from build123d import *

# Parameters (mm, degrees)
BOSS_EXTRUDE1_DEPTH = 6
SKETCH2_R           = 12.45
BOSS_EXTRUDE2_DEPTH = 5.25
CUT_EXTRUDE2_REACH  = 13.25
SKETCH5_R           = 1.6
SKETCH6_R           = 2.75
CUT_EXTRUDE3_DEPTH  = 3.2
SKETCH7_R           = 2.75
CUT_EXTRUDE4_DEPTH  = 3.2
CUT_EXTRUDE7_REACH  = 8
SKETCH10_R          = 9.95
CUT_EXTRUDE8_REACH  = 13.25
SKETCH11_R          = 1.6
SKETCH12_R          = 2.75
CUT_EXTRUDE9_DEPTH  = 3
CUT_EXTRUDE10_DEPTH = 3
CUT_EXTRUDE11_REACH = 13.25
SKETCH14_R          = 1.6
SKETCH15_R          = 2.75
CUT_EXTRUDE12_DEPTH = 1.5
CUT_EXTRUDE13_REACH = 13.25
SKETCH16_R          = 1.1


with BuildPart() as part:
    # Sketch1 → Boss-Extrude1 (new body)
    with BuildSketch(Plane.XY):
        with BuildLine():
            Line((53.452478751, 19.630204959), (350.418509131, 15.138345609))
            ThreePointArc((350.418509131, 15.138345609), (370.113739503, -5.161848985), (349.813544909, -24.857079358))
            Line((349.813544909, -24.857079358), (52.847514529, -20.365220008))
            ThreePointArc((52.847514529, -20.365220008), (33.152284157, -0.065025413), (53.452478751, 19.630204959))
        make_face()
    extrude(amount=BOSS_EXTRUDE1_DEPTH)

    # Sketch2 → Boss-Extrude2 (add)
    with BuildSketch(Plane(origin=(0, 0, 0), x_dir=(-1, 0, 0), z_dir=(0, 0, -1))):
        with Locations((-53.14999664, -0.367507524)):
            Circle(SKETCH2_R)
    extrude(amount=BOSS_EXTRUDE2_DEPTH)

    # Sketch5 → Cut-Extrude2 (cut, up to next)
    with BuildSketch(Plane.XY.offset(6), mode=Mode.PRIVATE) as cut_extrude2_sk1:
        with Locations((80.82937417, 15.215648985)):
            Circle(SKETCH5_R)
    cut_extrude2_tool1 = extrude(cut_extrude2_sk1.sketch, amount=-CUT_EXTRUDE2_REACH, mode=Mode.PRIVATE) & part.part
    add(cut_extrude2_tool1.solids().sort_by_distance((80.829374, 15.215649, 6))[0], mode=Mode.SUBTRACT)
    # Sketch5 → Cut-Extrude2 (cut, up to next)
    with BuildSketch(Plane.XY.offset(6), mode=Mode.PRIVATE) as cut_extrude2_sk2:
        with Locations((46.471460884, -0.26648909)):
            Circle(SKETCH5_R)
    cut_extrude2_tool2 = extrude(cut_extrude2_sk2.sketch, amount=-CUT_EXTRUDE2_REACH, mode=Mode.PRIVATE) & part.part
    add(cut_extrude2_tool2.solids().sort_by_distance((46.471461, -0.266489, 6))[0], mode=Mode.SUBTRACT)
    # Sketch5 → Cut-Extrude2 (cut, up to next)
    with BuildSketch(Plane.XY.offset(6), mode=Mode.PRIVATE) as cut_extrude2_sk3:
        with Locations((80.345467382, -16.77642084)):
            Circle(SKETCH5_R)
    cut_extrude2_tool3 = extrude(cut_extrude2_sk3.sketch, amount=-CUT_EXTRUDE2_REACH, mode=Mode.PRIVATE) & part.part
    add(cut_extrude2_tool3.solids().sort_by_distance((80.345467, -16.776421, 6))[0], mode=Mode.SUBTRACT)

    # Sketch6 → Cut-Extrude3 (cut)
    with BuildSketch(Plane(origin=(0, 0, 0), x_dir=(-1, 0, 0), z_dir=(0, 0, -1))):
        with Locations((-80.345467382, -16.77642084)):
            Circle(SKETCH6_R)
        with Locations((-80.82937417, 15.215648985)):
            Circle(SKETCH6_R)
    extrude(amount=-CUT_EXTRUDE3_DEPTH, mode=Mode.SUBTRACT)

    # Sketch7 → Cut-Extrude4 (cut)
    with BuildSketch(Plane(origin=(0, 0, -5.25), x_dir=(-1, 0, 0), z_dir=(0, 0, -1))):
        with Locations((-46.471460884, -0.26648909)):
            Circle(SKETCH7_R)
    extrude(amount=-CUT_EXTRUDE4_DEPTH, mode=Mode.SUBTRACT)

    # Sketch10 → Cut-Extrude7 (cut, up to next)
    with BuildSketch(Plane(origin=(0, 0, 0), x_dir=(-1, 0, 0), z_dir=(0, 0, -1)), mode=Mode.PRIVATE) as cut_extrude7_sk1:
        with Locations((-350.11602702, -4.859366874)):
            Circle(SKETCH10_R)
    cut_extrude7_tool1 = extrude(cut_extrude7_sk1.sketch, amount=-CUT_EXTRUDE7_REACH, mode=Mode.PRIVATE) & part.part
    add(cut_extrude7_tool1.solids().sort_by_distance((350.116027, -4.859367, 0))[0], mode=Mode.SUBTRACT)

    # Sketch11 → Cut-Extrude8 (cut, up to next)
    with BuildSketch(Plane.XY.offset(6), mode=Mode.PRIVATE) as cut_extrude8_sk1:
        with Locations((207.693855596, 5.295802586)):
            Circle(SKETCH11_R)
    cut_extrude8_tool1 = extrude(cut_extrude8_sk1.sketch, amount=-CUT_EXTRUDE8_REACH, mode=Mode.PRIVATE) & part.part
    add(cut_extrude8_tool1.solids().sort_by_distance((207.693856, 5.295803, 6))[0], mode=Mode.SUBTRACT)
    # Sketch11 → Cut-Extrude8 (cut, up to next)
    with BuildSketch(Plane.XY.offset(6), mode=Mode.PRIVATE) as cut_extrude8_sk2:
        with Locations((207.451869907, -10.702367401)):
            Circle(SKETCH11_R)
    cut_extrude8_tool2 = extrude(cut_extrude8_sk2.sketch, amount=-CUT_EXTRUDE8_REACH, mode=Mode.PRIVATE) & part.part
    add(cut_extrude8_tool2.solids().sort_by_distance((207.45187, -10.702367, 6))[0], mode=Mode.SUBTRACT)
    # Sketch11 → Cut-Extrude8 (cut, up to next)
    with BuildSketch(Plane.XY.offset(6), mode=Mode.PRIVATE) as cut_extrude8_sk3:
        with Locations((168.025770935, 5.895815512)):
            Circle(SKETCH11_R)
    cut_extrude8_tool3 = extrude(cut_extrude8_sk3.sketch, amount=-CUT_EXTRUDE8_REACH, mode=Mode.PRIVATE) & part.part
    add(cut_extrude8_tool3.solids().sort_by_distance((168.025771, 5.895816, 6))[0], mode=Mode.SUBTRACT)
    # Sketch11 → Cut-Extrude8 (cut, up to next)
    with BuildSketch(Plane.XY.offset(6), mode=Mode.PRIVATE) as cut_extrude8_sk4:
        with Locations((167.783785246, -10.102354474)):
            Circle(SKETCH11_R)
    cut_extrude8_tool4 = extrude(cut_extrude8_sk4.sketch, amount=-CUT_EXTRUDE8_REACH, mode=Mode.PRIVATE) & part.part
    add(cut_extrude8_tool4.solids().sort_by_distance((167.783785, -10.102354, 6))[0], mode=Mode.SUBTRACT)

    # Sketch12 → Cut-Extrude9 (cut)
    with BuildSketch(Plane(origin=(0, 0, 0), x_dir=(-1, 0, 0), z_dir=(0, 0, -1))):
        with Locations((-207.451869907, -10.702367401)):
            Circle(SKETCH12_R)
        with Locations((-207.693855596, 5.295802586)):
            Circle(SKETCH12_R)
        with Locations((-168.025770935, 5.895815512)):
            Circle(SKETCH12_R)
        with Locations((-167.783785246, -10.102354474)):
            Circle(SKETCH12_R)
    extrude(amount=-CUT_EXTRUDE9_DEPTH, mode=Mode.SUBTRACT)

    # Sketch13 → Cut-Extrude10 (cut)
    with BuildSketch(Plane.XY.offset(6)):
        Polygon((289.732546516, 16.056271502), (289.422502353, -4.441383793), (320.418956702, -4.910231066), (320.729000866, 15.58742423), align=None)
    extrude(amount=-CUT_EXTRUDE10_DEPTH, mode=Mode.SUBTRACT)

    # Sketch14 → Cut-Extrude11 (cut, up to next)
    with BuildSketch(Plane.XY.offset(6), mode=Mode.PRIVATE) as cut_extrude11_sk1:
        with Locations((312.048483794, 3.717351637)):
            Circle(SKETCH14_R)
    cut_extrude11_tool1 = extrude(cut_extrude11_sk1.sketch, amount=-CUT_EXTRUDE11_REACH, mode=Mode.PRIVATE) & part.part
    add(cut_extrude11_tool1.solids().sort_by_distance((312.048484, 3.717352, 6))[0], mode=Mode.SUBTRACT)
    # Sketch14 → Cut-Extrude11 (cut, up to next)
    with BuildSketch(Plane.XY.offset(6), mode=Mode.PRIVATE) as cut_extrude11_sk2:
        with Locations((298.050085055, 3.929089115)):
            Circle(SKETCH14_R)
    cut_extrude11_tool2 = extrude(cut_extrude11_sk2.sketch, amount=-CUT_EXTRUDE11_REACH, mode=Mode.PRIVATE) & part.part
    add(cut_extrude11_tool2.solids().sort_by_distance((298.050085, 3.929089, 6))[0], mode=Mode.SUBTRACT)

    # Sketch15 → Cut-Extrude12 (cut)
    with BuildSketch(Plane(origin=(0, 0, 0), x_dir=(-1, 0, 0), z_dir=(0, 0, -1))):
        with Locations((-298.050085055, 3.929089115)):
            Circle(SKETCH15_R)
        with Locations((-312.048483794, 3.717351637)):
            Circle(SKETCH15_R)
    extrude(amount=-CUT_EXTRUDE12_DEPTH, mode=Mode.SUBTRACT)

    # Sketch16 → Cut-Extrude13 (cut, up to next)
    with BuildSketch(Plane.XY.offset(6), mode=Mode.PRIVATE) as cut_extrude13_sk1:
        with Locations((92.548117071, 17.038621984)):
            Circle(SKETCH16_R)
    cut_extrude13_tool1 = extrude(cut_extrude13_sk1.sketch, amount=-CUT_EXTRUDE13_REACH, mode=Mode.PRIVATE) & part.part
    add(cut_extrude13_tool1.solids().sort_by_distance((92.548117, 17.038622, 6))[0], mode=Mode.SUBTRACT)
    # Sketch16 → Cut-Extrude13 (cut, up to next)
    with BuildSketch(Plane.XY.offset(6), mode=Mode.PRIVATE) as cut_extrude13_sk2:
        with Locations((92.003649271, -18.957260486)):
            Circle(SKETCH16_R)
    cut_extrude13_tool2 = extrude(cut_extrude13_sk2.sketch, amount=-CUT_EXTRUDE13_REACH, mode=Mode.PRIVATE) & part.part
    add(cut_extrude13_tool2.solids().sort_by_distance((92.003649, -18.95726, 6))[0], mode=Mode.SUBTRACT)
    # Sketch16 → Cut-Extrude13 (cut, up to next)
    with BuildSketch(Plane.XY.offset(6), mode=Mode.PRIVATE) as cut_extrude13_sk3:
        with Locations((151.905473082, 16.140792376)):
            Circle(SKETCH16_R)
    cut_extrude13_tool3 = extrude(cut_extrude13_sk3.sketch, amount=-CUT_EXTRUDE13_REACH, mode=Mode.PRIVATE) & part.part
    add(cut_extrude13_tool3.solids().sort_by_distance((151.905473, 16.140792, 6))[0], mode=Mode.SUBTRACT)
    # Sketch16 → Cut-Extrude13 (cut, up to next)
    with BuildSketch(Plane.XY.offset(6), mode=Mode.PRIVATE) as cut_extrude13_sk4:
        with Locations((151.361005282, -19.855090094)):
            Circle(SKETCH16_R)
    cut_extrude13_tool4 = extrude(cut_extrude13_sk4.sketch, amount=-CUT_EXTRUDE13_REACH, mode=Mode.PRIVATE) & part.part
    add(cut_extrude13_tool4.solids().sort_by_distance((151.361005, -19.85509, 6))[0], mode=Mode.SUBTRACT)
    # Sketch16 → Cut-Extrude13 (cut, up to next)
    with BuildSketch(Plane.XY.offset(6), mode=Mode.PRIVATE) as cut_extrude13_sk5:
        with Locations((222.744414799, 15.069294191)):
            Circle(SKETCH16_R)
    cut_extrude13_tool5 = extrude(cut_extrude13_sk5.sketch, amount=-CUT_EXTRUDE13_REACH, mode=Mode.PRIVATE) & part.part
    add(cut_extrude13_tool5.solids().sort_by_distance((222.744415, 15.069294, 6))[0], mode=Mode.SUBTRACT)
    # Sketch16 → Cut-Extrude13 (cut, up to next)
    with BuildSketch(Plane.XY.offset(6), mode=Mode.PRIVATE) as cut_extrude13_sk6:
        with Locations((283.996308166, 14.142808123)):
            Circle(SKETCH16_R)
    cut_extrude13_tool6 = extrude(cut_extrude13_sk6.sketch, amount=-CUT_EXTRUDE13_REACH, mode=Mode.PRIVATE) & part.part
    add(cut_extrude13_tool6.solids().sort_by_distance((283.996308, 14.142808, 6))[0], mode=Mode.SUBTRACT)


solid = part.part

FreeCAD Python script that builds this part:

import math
import FreeCAD as App
import Part
import Sketcher

V = App.Vector


def add_polygon(sketch, points):
    """Adds a closed chain of lines whose ends are joined by coincident constraints."""
    first, n = sketch.GeometryCount, len(points)
    for a, b in zip(points, points[1:] + points[:1]):
        sketch.addGeometry(Part.LineSegment(App.Vector(*a, 0), App.Vector(*b, 0)), False)
    for i in range(n):
        sketch.addConstraint(Sketcher.Constraint("Coincident", first + i, 2, first + (i + 1) % n, 1))

doc = App.newDocument("Part")
body = doc.addObject("PartDesign::Body", "Body")

# Sketch on XY plane
sketch1 = body.newObject("Sketcher::SketchObject", "Sketch")
sketch1.AttachmentSupport = (doc.getObject("XY_Plane"), [""])
sketch1.MapMode = "FlatFace"
sketch1.addGeometry([
    Part.LineSegment(V(350, 15, 0), V(53, 20, 0)),
    Part.ArcOfCircle(Part.Circle(V(53, 0, 0), V(0, 0, 1), 20), math.radians(89), math.radians(269)),
    Part.LineSegment(V(53, -20, 0), V(350, -25, 0)),
    Part.ArcOfCircle(Part.Circle(V(350, -5, 0), V(0, 0, 1), 20), math.radians(-91), math.radians(89)),
], False)
sketch1.addConstraint([
    Sketcher.Constraint("Tangent", 0, 2, 1, 1),
    Sketcher.Constraint("Tangent", 1, 2, 2, 1),
    Sketcher.Constraint("Tangent", 2, 2, 3, 1),
    Sketcher.Constraint("Tangent", 3, 2, 0, 1),
    Sketcher.Constraint("Equal", 1, 3),
    Sketcher.Constraint("Radius", 1, 20.0),
    Sketcher.Constraint("Distance", 0, 297.0),
    Sketcher.Constraint("DistanceX", -1, 1, 0, 2, 53.452479),
    Sketcher.Constraint("DistanceY", 1, 2, -1, 1, 20.36522),
    Sketcher.Constraint("DistanceY", 2, 2, -1, 1, 24.857079),
])
pad1 = body.newObject("PartDesign::Pad", "Pad")
pad1.Profile = sketch1
pad1.Length = 6

# Sketch on XY plane
sketch2 = body.newObject("Sketcher::SketchObject", "Sketch001")
sketch2.AttachmentSupport = (doc.getObject("XY_Plane"), [""])
sketch2.MapMode = "FlatFace"
sketch2.addGeometry(Part.Circle(V(53, 0, 0), V(0, 0, 1), 12), False)
sketch2.addConstraint([
    Sketcher.Constraint("Diameter", 0, 24.9),
    Sketcher.Constraint("DistanceX", -1, 1, 0, 3, 53.149997),
    Sketcher.Constraint("DistanceY", 0, 3, -1, 1, 0.367508),
])
pad2 = body.newObject("PartDesign::Pad", "Pad001")
pad2.Profile = sketch2
pad2.Length = 5.25
pad2.Reversed = True

# Sketch on XY plane
sketch3 = body.newObject("Sketcher::SketchObject", "Sketch002")
sketch3.AttachmentSupport = (doc.getObject("XY_Plane"), [""])
sketch3.MapMode = "FlatFace"
sketch3.AttachmentOffset = App.Placement(V(0, 0, 6), App.Rotation())
sketch3.addGeometry(Part.Circle(V(80.8, 15.2, 0), V(0, 0, 1), 1.6), False)
sketch3.addConstraint([
    Sketcher.Constraint("Diameter", 0, 3.2),
    Sketcher.Constraint("DistanceY", -1, 1, 0, 3, 15.215649),
    Sketcher.Constraint("DistanceX", -1, 1, 0, 3, 80.829374),
])
pocket1 = body.newObject("PartDesign::Pocket", "Pocket")
pocket1.Profile = sketch3
pocket1.Type = "UpToFirst"

# Sketch on XY plane
sketch4 = body.newObject("Sketcher::SketchObject", "Sketch003")
sketch4.AttachmentSupport = (doc.getObject("XY_Plane"), [""])
sketch4.MapMode = "FlatFace"
sketch4.AttachmentOffset = App.Placement(V(0, 0, 6), App.Rotation())
sketch4.addGeometry(Part.Circle(V(46.5, -0.3, 0), V(0, 0, 1), 1.6), False)
sketch4.addConstraint([
    Sketcher.Constraint("Diameter", 0, 3.2),
    Sketcher.Constraint("DistanceX", -1, 1, 0, 3, 46.471461),
    Sketcher.Constraint("DistanceY", 0, 3, -1, 1, 0.266489),
])
pocket2 = body.newObject("PartDesign::Pocket", "Pocket001")
pocket2.Profile = sketch4
pocket2.Type = "UpToFirst"

# Sketch on XY plane
sketch5 = body.newObject("Sketcher::SketchObject", "Sketch004")
sketch5.AttachmentSupport = (doc.getObject("XY_Plane"), [""])
sketch5.MapMode = "FlatFace"
sketch5.AttachmentOffset = App.Placement(V(0, 0, 6), App.Rotation())
sketch5.addGeometry(Part.Circle(V(80.3, -16.8, 0), V(0, 0, 1), 1.6), False)
sketch5.addConstraint([
    Sketcher.Constraint("Diameter", 0, 3.2),
    Sketcher.Constraint("DistanceY", 0, 3, -1, 1, 16.776421),
    Sketcher.Constraint("DistanceX", -1, 1, 0, 3, 80.345467),
])
pocket3 = body.newObject("PartDesign::Pocket", "Pocket002")
pocket3.Profile = sketch5
pocket3.Type = "UpToFirst"

# Sketch on XY plane
sketch6 = body.newObject("Sketcher::SketchObject", "Sketch005")
sketch6.AttachmentSupport = (doc.getObject("XY_Plane"), [""])
sketch6.MapMode = "FlatFace"
sketch6.addGeometry([
    Part.Circle(V(80.3, -16.8, 0), V(0, 0, 1), 2.8),
    Part.Circle(V(80.8, 15.2, 0), V(0, 0, 1), 2.8),
], False)
sketch6.addConstraint([
    Sketcher.Constraint("Equal", 0, 1),
    Sketcher.Constraint("Diameter", 0, 5.5),
    Sketcher.Constraint("DistanceY", 0, 3, -1, 1, 16.776421),
    Sketcher.Constraint("DistanceY", -1, 1, 1, 3, 15.215649),
    Sketcher.Constraint("DistanceX", -1, 1, 0, 3, 80.345467),
    Sketcher.Constraint("DistanceX", -1, 1, 1, 3, 80.829374),
])
pocket4 = body.newObject("PartDesign::Pocket", "Pocket003")
pocket4.Profile = sketch6
pocket4.Length = 3.2
pocket4.Reversed = True

# Sketch on XY plane
sketch7 = body.newObject("Sketcher::SketchObject", "Sketch006")
sketch7.AttachmentSupport = (doc.getObject("XY_Plane"), [""])
sketch7.MapMode = "FlatFace"
sketch7.AttachmentOffset = App.Placement(V(0, 0, -5.25), App.Rotation())
sketch7.addGeometry(Part.Circle(V(46.5, -0.3, 0), V(0, 0, 1), 2.8), False)
sketch7.addConstraint([
    Sketcher.Constraint("Diameter", 0, 5.5),
    Sketcher.Constraint("DistanceX", -1, 1, 0, 3, 46.471461),
    Sketcher.Constraint("DistanceY", 0, 3, -1, 1, 0.266489),
])
pocket5 = body.newObject("PartDesign::Pocket", "Pocket004")
pocket5.Profile = sketch7
pocket5.Length = 3.2
pocket5.Reversed = True

# Sketch on XY plane
sketch8 = body.newObject("Sketcher::SketchObject", "Sketch007")
sketch8.AttachmentSupport = (doc.getObject("XY_Plane"), [""])
sketch8.MapMode = "FlatFace"
sketch8.addGeometry(Part.Circle(V(350, -5, 0), V(0, 0, 1), 10), False)
sketch8.addConstraint([
    Sketcher.Constraint("Diameter", 0, 19.9),
    Sketcher.Constraint("DistanceX", -1, 1, 0, 3, 350.116027),
    Sketcher.Constraint("DistanceY", 0, 3, -1, 1, 4.859367),
])
pocket6 = body.newObject("PartDesign::Pocket", "Pocket005")
pocket6.Profile = sketch8
pocket6.Type = "UpToFirst"
pocket6.Reversed = True

# Sketch on XY plane
sketch9 = body.newObject("Sketcher::SketchObject", "Sketch008")
sketch9.AttachmentSupport = (doc.getObject("XY_Plane"), [""])
sketch9.MapMode = "FlatFace"
sketch9.AttachmentOffset = App.Placement(V(0, 0, 6), App.Rotation())
sketch9.addGeometry(Part.Circle(V(207.7, 5.3, 0), V(0, 0, 1), 1.6), False)
sketch9.addConstraint([
    Sketcher.Constraint("Diameter", 0, 3.2),
    Sketcher.Constraint("DistanceX", -1, 1, 0, 3, 207.693856),
    Sketcher.Constraint("DistanceY", -1, 1, 0, 3, 5.295803),
])
pocket7 = body.newObject("PartDesign::Pocket", "Pocket006")
pocket7.Profile = sketch9
pocket7.Type = "UpToFirst"

# Sketch on XY plane
sketch10 = body.newObject("Sketcher::SketchObject", "Sketch009")
sketch10.AttachmentSupport = (doc.getObject("XY_Plane"), [""])
sketch10.MapMode = "FlatFace"
sketch10.AttachmentOffset = App.Placement(V(0, 0, 6), App.Rotation())
sketch10.addGeometry(Part.Circle(V(207.5, -10.7, 0), V(0, 0, 1), 1.6), False)
sketch10.addConstraint([
    Sketcher.Constraint("Diameter", 0, 3.2),
    Sketcher.Constraint("DistanceX", -1, 1, 0, 3, 207.45187),
    Sketcher.Constraint("DistanceY", 0, 3, -1, 1, 10.702367),
])
pocket8 = body.newObject("PartDesign::Pocket", "Pocket007")
pocket8.Profile = sketch10
pocket8.Type = "UpToFirst"

# Sketch on XY plane
sketch11 = body.newObject("Sketcher::SketchObject", "Sketch010")
sketch11.AttachmentSupport = (doc.getObject("XY_Plane"), [""])
sketch11.MapMode = "FlatFace"
sketch11.AttachmentOffset = App.Placement(V(0, 0, 6), App.Rotation())
sketch11.addGeometry(Part.Circle(V(168, 5.9, 0), V(0, 0, 1), 1.6), False)
sketch11.addConstraint([
    Sketcher.Constraint("Diameter", 0, 3.2),
    Sketcher.Constraint("DistanceX", -1, 1, 0, 3, 168.025771),
    Sketcher.Constraint("DistanceY", -1, 1, 0, 3, 5.895816),
])
pocket9 = body.newObject("PartDesign::Pocket", "Pocket008")
pocket9.Profile = sketch11
pocket9.Type = "UpToFirst"

# Sketch on XY plane
sketch12 = body.newObject("Sketcher::SketchObject", "Sketch011")
sketch12.AttachmentSupport = (doc.getObject("XY_Plane"), [""])
sketch12.MapMode = "FlatFace"
sketch12.AttachmentOffset = App.Placement(V(0, 0, 6), App.Rotation())
sketch12.addGeometry(Part.Circle(V(167.8, -10.1, 0), V(0, 0, 1), 1.6), False)
sketch12.addConstraint([
    Sketcher.Constraint("Diameter", 0, 3.2),
    Sketcher.Constraint("DistanceX", -1, 1, 0, 3, 167.783785),
    Sketcher.Constraint("DistanceY", 0, 3, -1, 1, 10.102354),
])
pocket10 = body.newObject("PartDesign::Pocket", "Pocket009")
pocket10.Profile = sketch12
pocket10.Type = "UpToFirst"

# Sketch on XY plane
sketch13 = body.newObject("Sketcher::SketchObject", "Sketch012")
sketch13.AttachmentSupport = (doc.getObject("XY_Plane"), [""])
sketch13.MapMode = "FlatFace"
sketch13.addGeometry([
    Part.Circle(V(207.5, -10.7, 0), V(0, 0, 1), 2.8),
    Part.Circle(V(207.7, 5.3, 0), V(0, 0, 1), 2.8),
    Part.Circle(V(168, 5.9, 0), V(0, 0, 1), 2.8),
    Part.Circle(V(167.8, -10.1, 0), V(0, 0, 1), 2.8),
], False)
sketch13.addConstraint([
    Sketcher.Constraint("Equal", 0, 1),
    Sketcher.Constraint("Equal", 1, 2),
    Sketcher.Constraint("Equal", 2, 3),
    Sketcher.Constraint("Diameter", 0, 5.5),
    Sketcher.Constraint("DistanceX", 2, 3, 0, 3, 39.426099),
    Sketcher.Constraint("DistanceX", -1, 1, 0, 3, 207.45187),
    Sketcher.Constraint("DistanceY", 0, 3, 1, 3, 15.99817),
    Sketcher.Constraint("DistanceY", 3, 3, 2, 3, 15.99817),
    Sketcher.Constraint("DistanceX", 3, 3, 1, 3, 39.91007),
    Sketcher.Constraint("DistanceY", 0, 3, -1, 1, 10.702367),
    Sketcher.Constraint("DistanceX", -1, 1, 1, 3, 207.693856),
    Sketcher.Constraint("DistanceY", -1, 1, 2, 3, 5.895816),
])
pocket11 = body.newObject("PartDesign::Pocket", "Pocket010")
pocket11.Profile = sketch13
pocket11.Length = 3
pocket11.Reversed = True

# Sketch on XY plane
sketch14 = body.newObject("Sketcher::SketchObject", "Sketch013")
sketch14.AttachmentSupport = (doc.getObject("XY_Plane"), [""])
sketch14.MapMode = "FlatFace"
sketch14.AttachmentOffset = App.Placement(V(0, 0, 6), App.Rotation())
add_polygon(sketch14, [(290, 16), (289, -4), (320, -5), (321, 16)])  # lines 0-3
sketch14.addConstraint([
    Sketcher.Constraint("Perpendicular", 0, 1),
    Sketcher.Constraint("Perpendicular", 1, 2),
    Sketcher.Constraint("Perpendicular", 2, 3),
    Sketcher.Constraint("Distance", 1, 31.0),
    Sketcher.Constraint("Distance", 0, 20.5),
    Sketcher.Constraint("DistanceX", -1, 1, 2, 2, 320.729001),
    Sketcher.Constraint("DistanceX", 0, 2, 2, 2, 31.306499),
    Sketcher.Constraint("DistanceY", 1, 2, -1, 1, 4.910231),
])
pocket12 = body.newObject("PartDesign::Pocket", "Pocket011")
pocket12.Profile = sketch14
pocket12.Length = 3

# Sketch on XY plane
sketch15 = body.newObject("Sketcher::SketchObject", "Sketch014")
sketch15.AttachmentSupport = (doc.getObject("XY_Plane"), [""])
sketch15.MapMode = "FlatFace"
sketch15.AttachmentOffset = App.Placement(V(0, 0, 6), App.Rotation())
sketch15.addGeometry(Part.Circle(V(312, 3.7, 0), V(0, 0, 1), 1.6), False)
sketch15.addConstraint([
    Sketcher.Constraint("Diameter", 0, 3.2),
    Sketcher.Constraint("DistanceY", -1, 1, 0, 3, 3.717352),
    Sketcher.Constraint("DistanceX", -1, 1, 0, 3, 312.048484),
])
pocket13 = body.newObject("PartDesign::Pocket", "Pocket012")
pocket13.Profile = sketch15
pocket13.Length = 6

# Sketch on XY plane
sketch16 = body.newObject("Sketcher::SketchObject", "Sketch015")
sketch16.AttachmentSupport = (doc.getObject("XY_Plane"), [""])
sketch16.MapMode = "FlatFace"
sketch16.AttachmentOffset = App.Placement(V(0, 0, 6), App.Rotation())
sketch16.addGeometry(Part.Circle(V(298.1, 3.9, 0), V(0, 0, 1), 1.6), False)
sketch16.addConstraint([
    Sketcher.Constraint("Diameter", 0, 3.2),
    Sketcher.Constraint("DistanceY", -1, 1, 0, 3, 3.929089),
    Sketcher.Constraint("DistanceX", -1, 1, 0, 3, 298.050085),
])
pocket14 = body.newObject("PartDesign::Pocket", "Pocket013")
pocket14.Profile = sketch16
pocket14.Length = 6

# Sketch on XY plane
sketch17 = body.newObject("Sketcher::SketchObject", "Sketch016")
sketch17.AttachmentSupport = (doc.getObject("XY_Plane"), [""])
sketch17.MapMode = "FlatFace"
sketch17.addGeometry([
    Part.Circle(V(298.1, 3.9, 0), V(0, 0, 1), 2.8),
    Part.Circle(V(312, 3.7, 0), V(0, 0, 1), 2.8),
], False)
sketch17.addConstraint([
    Sketcher.Constraint("Equal", 0, 1),
    Sketcher.Constraint("Diameter", 0, 5.5),
    Sketcher.Constraint("DistanceX", 0, 3, 1, 3, 13.998399),
    Sketcher.Constraint("DistanceY", -1, 1, 0, 3, 3.929089),
    Sketcher.Constraint("DistanceY", -1, 1, 1, 3, 3.717352),
    Sketcher.Constraint("DistanceX", -1, 1, 0, 3, 298.050085),
])
pocket15 = body.newObject("PartDesign::Pocket", "Pocket014")
pocket15.Profile = sketch17
pocket15.Length = 1.5
pocket15.Reversed = True

# Sketch on XY plane
sketch18 = body.newObject("Sketcher::SketchObject", "Sketch017")
sketch18.AttachmentSupport = (doc.getObject("XY_Plane"), [""])
sketch18.MapMode = "FlatFace"
sketch18.AttachmentOffset = App.Placement(V(0, 0, 6), App.Rotation())
sketch18.addGeometry(Part.Circle(V(92.5, 17, 0), V(0, 0, 1), 1.1), False)
sketch18.addConstraint([
    Sketcher.Constraint("Diameter", 0, 2.2),
    Sketcher.Constraint("DistanceY", -1, 1, 0, 3, 17.038622),
    Sketcher.Constraint("DistanceX", -1, 1, 0, 3, 92.548117),
])
pocket16 = body.newObject("PartDesign::Pocket", "Pocket015")
pocket16.Profile = sketch18
pocket16.Type = "UpToFirst"

# Sketch on XY plane
sketch19 = body.newObject("Sketcher::SketchObject", "Sketch018")
sketch19.AttachmentSupport = (doc.getObject("XY_Plane"), [""])
sketch19.MapMode = "FlatFace"
sketch19.AttachmentOffset = App.Placement(V(0, 0, 6), App.Rotation())
sketch19.addGeometry(Part.Circle(V(92, -19, 0), V(0, 0, 1), 1.1), False)
sketch19.addConstraint([
    Sketcher.Constraint("Diameter", 0, 2.2),
    Sketcher.Constraint("DistanceX", -1, 1, 0, 3, 92.003649),
    Sketcher.Constraint("DistanceY", 0, 3, -1, 1, 18.95726),
])
pocket17 = body.newObject("PartDesign::Pocket", "Pocket016")
pocket17.Profile = sketch19
pocket17.Type = "UpToFirst"

# Sketch on XY plane
sketch20 = body.newObject("Sketcher::SketchObject", "Sketch019")
sketch20.AttachmentSupport = (doc.getObject("XY_Plane"), [""])
sketch20.MapMode = "FlatFace"
sketch20.AttachmentOffset = App.Placement(V(0, 0, 6), App.Rotation())
sketch20.addGeometry(Part.Circle(V(151.9, 16.1, 0), V(0, 0, 1), 1.1), False)
sketch20.addConstraint([
    Sketcher.Constraint("Diameter", 0, 2.2),
    Sketcher.Constraint("DistanceX", -1, 1, 0, 3, 151.905473),
    Sketcher.Constraint("DistanceY", -1, 1, 0, 3, 16.140792),
])
pocket18 = body.newObject("PartDesign::Pocket", "Pocket017")
pocket18.Profile = sketch20
pocket18.Type = "UpToFirst"

# Sketch on XY plane
sketch21 = body.newObject("Sketcher::SketchObject", "Sketch020")
sketch21.AttachmentSupport = (doc.getObject("XY_Plane"), [""])
sketch21.MapMode = "FlatFace"
sketch21.AttachmentOffset = App.Placement(V(0, 0, 6), App.Rotation())
sketch21.addGeometry(Part.Circle(V(151.4, -19.9, 0), V(0, 0, 1), 1.1), False)
sketch21.addConstraint([
    Sketcher.Constraint("Diameter", 0, 2.2),
    Sketcher.Constraint("DistanceY", 0, 3, -1, 1, 19.85509),
    Sketcher.Constraint("DistanceX", -1, 1, 0, 3, 151.361005),
])
pocket19 = body.newObject("PartDesign::Pocket", "Pocket018")
pocket19.Profile = sketch21
pocket19.Type = "UpToFirst"

# Sketch on XY plane
sketch22 = body.newObject("Sketcher::SketchObject", "Sketch021")
sketch22.AttachmentSupport = (doc.getObject("XY_Plane"), [""])
sketch22.MapMode = "FlatFace"
sketch22.AttachmentOffset = App.Placement(V(0, 0, 6), App.Rotation())
sketch22.addGeometry(Part.Circle(V(222.7, 15.1, 0), V(0, 0, 1), 1.1), False)
sketch22.addConstraint([
    Sketcher.Constraint("Diameter", 0, 2.2),
    Sketcher.Constraint("DistanceX", -1, 1, 0, 3, 222.744415),
    Sketcher.Constraint("DistanceY", -1, 1, 0, 3, 15.069294),
])
pocket20 = body.newObject("PartDesign::Pocket", "Pocket019")
pocket20.Profile = sketch22
pocket20.Type = "UpToFirst"

# Sketch on XY plane
sketch23 = body.newObject("Sketcher::SketchObject", "Sketch022")
sketch23.AttachmentSupport = (doc.getObject("XY_Plane"), [""])
sketch23.MapMode = "FlatFace"
sketch23.AttachmentOffset = App.Placement(V(0, 0, 6), App.Rotation())
sketch23.addGeometry(Part.Circle(V(284, 14.1, 0), V(0, 0, 1), 1.1), False)
sketch23.addConstraint([
    Sketcher.Constraint("Diameter", 0, 2.2),
    Sketcher.Constraint("DistanceX", -1, 1, 0, 3, 283.996308),
    Sketcher.Constraint("DistanceY", -1, 1, 0, 3, 14.142808),
])
pocket21 = body.newObject("PartDesign::Pocket", "Pocket020")
pocket21.Profile = sketch23
pocket21.Type = "UpToFirst"

doc.recompute()
